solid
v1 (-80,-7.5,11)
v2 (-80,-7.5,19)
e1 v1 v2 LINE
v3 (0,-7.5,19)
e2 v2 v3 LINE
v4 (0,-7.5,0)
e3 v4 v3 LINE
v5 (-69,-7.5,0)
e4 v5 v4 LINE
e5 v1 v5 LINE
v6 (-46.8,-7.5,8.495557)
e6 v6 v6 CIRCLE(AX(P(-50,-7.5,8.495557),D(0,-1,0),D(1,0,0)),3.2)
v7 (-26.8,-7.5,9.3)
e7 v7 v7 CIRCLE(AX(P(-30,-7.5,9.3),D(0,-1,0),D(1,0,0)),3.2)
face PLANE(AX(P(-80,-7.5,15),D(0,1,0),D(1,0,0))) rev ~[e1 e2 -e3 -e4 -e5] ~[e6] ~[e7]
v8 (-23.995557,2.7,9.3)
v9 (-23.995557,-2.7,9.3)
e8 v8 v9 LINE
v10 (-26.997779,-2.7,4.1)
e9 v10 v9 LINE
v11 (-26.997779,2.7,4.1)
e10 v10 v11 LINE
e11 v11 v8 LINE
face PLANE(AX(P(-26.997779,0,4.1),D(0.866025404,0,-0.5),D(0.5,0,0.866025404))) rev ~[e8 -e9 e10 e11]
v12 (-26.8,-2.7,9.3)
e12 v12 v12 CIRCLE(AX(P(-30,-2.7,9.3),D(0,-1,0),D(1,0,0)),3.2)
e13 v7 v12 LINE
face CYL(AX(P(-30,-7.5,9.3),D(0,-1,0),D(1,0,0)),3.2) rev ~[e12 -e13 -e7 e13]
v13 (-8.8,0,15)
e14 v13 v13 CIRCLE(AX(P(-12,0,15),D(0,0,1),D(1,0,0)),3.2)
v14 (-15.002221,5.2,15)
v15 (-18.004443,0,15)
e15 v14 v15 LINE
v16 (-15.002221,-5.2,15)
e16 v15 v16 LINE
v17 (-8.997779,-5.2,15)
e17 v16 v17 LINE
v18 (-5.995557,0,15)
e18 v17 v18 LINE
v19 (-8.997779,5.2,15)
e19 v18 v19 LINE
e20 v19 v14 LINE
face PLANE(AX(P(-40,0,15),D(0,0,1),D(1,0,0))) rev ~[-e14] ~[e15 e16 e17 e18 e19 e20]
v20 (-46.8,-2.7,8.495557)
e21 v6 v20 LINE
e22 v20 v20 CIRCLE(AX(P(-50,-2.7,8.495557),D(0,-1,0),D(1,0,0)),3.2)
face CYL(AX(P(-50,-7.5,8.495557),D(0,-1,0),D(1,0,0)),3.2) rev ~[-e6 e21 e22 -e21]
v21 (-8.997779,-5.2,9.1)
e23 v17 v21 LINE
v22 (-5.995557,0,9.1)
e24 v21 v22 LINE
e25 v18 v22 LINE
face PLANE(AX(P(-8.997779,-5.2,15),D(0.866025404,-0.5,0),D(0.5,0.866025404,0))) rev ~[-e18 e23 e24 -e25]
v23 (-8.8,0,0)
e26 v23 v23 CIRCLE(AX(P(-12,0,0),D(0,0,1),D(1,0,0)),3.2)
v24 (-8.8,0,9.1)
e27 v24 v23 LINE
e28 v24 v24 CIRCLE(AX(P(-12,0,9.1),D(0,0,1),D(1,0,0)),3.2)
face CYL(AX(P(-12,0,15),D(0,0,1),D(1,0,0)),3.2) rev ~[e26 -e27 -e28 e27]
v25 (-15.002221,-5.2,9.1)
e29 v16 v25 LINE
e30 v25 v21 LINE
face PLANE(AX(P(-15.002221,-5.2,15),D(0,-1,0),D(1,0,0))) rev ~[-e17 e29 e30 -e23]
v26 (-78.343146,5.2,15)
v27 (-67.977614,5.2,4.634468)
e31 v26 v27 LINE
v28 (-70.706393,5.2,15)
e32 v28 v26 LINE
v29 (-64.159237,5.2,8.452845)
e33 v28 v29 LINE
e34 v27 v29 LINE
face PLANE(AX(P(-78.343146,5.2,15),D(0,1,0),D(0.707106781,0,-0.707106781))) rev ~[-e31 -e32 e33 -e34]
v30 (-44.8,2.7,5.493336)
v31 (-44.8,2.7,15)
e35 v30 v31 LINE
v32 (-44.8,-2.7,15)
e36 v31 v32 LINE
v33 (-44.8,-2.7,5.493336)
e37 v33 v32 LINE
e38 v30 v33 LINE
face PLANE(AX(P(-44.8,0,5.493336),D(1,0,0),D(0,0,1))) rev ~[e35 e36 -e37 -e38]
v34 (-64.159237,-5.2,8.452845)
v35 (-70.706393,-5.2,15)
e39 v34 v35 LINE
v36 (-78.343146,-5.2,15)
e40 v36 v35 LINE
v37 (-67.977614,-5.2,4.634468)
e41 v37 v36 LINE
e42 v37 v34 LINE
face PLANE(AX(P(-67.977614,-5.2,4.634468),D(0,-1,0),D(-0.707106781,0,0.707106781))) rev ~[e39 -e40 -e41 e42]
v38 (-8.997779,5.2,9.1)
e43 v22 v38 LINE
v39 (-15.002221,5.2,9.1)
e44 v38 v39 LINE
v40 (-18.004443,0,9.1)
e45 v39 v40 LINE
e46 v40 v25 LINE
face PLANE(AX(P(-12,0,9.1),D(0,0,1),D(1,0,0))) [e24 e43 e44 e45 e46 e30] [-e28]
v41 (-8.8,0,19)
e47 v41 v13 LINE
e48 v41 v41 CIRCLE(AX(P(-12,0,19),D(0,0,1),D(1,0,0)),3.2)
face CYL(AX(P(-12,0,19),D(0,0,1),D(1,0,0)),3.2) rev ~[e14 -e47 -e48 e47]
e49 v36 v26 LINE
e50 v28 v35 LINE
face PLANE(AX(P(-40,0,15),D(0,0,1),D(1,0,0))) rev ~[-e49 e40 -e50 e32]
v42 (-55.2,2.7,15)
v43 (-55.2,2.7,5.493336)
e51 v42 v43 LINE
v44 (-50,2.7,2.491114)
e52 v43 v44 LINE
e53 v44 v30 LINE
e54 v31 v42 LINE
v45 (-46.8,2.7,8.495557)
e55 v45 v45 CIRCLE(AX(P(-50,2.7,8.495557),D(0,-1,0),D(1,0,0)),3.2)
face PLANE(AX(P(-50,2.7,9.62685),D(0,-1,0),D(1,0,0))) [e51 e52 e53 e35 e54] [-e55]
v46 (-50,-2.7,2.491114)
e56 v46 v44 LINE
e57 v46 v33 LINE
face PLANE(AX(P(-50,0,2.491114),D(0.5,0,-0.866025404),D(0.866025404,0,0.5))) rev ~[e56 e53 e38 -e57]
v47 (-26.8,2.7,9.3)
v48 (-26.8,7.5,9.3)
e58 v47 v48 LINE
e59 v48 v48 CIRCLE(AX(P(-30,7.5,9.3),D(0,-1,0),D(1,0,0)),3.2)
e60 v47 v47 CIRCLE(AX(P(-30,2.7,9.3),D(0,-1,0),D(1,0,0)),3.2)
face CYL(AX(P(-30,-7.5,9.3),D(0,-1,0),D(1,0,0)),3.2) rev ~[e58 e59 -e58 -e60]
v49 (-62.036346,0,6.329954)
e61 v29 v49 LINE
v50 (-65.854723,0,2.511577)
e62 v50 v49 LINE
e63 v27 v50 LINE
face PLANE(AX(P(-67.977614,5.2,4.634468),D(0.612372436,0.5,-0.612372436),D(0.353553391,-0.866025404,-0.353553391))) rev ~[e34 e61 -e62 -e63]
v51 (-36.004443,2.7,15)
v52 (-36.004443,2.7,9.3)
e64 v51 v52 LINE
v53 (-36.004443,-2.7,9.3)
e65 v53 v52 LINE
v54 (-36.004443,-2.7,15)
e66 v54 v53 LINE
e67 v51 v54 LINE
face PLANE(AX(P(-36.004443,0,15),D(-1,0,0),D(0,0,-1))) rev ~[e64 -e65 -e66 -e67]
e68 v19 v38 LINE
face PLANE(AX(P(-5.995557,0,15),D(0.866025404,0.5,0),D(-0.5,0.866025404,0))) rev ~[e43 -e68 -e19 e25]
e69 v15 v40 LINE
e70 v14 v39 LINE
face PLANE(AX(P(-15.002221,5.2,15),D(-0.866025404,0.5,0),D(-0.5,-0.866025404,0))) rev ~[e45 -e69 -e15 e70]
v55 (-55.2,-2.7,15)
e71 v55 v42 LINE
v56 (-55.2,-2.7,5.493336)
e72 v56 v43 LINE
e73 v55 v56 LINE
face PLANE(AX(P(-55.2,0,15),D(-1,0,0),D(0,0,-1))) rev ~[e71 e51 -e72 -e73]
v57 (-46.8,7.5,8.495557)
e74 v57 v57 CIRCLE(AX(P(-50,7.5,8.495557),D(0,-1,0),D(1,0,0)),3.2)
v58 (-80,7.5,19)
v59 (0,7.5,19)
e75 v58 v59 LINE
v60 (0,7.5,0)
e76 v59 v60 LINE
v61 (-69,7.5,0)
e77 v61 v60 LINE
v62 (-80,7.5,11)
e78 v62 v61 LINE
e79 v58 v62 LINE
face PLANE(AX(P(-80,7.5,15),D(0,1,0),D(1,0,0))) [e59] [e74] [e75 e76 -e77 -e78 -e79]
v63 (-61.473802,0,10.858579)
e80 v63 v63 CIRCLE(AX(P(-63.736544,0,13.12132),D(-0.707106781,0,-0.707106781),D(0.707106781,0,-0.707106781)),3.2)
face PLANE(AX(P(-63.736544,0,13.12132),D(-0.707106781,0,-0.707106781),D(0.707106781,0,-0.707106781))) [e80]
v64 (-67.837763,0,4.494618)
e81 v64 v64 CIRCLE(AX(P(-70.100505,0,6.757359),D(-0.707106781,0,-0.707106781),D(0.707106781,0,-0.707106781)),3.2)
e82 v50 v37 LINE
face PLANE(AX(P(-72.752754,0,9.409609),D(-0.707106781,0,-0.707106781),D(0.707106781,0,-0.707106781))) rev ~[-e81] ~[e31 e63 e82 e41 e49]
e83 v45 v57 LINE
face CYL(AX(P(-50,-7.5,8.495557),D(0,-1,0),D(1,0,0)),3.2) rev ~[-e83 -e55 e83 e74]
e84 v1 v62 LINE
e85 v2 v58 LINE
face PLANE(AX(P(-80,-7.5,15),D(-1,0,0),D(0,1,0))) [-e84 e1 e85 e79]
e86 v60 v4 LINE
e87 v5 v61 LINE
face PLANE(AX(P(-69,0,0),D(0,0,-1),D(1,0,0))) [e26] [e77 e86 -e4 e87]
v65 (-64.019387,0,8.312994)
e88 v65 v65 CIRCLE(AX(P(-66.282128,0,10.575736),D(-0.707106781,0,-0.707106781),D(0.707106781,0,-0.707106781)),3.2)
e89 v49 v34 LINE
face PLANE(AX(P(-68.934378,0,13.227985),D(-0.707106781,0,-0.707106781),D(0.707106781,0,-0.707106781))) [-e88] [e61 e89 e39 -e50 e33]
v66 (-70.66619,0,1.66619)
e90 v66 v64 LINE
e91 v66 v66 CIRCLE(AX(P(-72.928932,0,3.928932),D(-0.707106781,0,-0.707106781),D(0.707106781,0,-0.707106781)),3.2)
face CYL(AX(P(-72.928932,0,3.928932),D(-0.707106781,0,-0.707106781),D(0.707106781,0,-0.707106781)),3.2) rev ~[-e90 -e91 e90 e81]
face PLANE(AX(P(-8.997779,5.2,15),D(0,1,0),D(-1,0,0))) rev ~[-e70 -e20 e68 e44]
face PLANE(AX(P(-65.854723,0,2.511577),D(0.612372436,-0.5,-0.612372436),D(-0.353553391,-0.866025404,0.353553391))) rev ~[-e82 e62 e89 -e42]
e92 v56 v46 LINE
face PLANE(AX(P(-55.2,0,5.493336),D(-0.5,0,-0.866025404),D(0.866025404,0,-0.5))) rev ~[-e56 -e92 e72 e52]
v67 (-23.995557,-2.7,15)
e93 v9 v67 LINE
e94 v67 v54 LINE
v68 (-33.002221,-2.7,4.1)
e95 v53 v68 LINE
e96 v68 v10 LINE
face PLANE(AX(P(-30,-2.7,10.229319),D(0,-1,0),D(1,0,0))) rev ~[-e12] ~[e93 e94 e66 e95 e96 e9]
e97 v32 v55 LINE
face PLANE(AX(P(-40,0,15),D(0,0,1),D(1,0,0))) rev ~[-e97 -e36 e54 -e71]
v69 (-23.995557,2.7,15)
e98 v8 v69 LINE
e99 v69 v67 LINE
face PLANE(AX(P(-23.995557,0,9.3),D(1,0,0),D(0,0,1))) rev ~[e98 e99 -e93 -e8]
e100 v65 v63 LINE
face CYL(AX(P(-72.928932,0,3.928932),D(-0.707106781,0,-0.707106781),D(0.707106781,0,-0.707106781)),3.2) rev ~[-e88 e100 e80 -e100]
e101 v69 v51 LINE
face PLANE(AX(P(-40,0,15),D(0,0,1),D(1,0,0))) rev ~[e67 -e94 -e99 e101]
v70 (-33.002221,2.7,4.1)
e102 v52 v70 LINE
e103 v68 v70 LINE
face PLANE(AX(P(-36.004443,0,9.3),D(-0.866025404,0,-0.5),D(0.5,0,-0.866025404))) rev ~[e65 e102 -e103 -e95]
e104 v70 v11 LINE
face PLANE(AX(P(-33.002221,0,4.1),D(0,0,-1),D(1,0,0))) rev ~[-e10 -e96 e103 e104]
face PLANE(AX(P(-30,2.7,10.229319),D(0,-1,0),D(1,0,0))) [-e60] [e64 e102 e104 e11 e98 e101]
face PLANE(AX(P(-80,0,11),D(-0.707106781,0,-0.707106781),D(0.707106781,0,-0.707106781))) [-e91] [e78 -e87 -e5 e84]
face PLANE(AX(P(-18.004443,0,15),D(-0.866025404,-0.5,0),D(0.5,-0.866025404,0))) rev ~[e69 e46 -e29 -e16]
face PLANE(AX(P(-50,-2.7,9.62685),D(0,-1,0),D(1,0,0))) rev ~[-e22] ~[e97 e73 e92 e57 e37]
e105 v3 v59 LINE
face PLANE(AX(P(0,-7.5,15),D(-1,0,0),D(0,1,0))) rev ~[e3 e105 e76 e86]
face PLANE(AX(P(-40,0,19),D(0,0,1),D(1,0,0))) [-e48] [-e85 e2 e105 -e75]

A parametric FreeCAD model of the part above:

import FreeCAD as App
import Part
import Sketcher
from FreeCAD import Vector
Q = App.Units.Quantity

doc = App.newDocument("Part")
body = doc.addObject("PartDesign::Body", "Body")

# Sketch on XZ plane
sketch1 = doc.addObject("Sketcher::SketchObject", "Sketch")
body.addObject(sketch1)
sketch1.AttachmentSupport = (doc.XZ_Plane, [""])
sketch1.MapMode = "FlatFace"
sketch1.addGeometry(Part.LineSegment(Vector(-69, 0, 0), Vector(0, 0, 0)), False)
sketch1.addGeometry(Part.LineSegment(Vector(0, 0, 0), Vector(0, 15, 0)), False)
sketch1.addGeometry(Part.LineSegment(Vector(0, 15, 0), Vector(-80, 15, 0)), False)
sketch1.addGeometry(Part.LineSegment(Vector(-80, 15, 0), Vector(-80, 11, 0)), False)
sketch1.addGeometry(Part.LineSegment(Vector(-80, 11, 0), Vector(-69, 0, 0)), False)
sketch1.addConstraint(Sketcher.Constraint("Coincident", 0, 2, 1, 1))
sketch1.addConstraint(Sketcher.Constraint("Coincident", 1, 2, 2, 1))
sketch1.addConstraint(Sketcher.Constraint("Coincident", 2, 2, 3, 1))
sketch1.addConstraint(Sketcher.Constraint("Coincident", 3, 2, 4, 1))
sketch1.addConstraint(Sketcher.Constraint("Coincident", 4, 2, 0, 1))
sketch1.addConstraint(Sketcher.Constraint("Horizontal", 0))
sketch1.addConstraint(Sketcher.Constraint("Vertical", 1))
sketch1.addConstraint(Sketcher.Constraint("Horizontal", 2))
sketch1.addConstraint(Sketcher.Constraint("Vertical", 3))
sketch1.addConstraint(Sketcher.Constraint("Coincident", 0, 2, -1, 1))
sketch1.addConstraint(Sketcher.Constraint("DistanceX", 0, 1, 0, 2, 69.0))
sketch1.addConstraint(Sketcher.Constraint("DistanceX", 2, 2, 2, 1, 80.0))
sketch1.addConstraint(Sketcher.Constraint("DistanceY", 1, 1, 1, 2, 15.0))
sketch1.addConstraint(Sketcher.Constraint("DistanceY", 3, 2, 3, 1, 4.0))
pad1 = doc.addObject("PartDesign::Pad", "Pad")
body.addObject(pad1)
pad1.Profile = sketch1
pad1.Length = 15
pad1.Midplane = True

# Sketch on XY plane
sketch2 = doc.addObject("Sketcher::SketchObject", "Sketch001")
body.addObject(sketch2)
sketch2.AttachmentSupport = (doc.XY_Plane, [""])
sketch2.MapMode = "FlatFace"
sketch2.AttachmentOffset = App.Placement(Vector(0, 0, 15), App.Rotation())
sketch2.addGeometry(Part.Circle(Vector(-12, 0, 0), Vector(0, 0, 1), 3.2), False)
sketch2.addConstraint(Sketcher.Constraint("PointOnObject", 0, 3, -1))
sketch2.addConstraint(Sketcher.Constraint("Diameter", 0, 6.4))
sketch2.addConstraint(Sketcher.Constraint("DistanceX", 0, 3, -1, 1, 12.0))
pocket1 = doc.addObject("PartDesign::Pocket", "Pocket")
body.addObject(pocket1)
pocket1.Profile = sketch2
pocket1.Type = "ThroughAll"

# Sketch on XZ plane
sketch3 = doc.addObject("Sketcher::SketchObject", "Sketch002")
body.addObject(sketch3)
sketch3.AttachmentSupport = (doc.XZ_Plane, [""])
sketch3.MapMode = "FlatFace"
sketch3.addGeometry(Part.LineSegment(Vector(-26.997779, 4.1, 0), Vector(-23.995557, 9.3, 0)), False)
sketch3.addGeometry(Part.LineSegment(Vector(-23.995557, 9.3, 0), Vector(-23.995557, 15, 0)), False)
sketch3.addGeometry(Part.LineSegment(Vector(-23.995557, 15, 0), Vector(-36.004443, 15, 0)), False)
sketch3.addGeometry(Part.LineSegment(Vector(-36.004443, 15, 0), Vector(-36.004443, 9.3, 0)), False)
sketch3.addGeometry(Part.LineSegment(Vector(-36.004443, 9.3, 0), Vector(-33.002221, 4.1, 0)), False)
sketch3.addGeometry(Part.LineSegment(Vector(-33.002221, 4.1, 0), Vector(-26.997779, 4.1, 0)), False)
sketch3.addConstraint(Sketcher.Constraint("Coincident", 0, 2, 1, 1))
sketch3.addConstraint(Sketcher.Constraint("Coincident", 1, 2, 2, 1))
sketch3.addConstraint(Sketcher.Constraint("Coincident", 2, 2, 3, 1))
sketch3.addConstraint(Sketcher.Constraint("Coincident", 3, 2, 4, 1))
sketch3.addConstraint(Sketcher.Constraint("Coincident", 4, 2, 5, 1))
sketch3.addConstraint(Sketcher.Constraint("Coincident", 5, 2, 0, 1))
sketch3.addConstraint(Sketcher.Constraint("Vertical", 1))
sketch3.addConstraint(Sketcher.Constraint("Horizontal", 2))
sketch3.addConstraint(Sketcher.Constraint("Vertical", 3))
sketch3.addConstraint(Sketcher.Constraint("Horizontal", 5))
sketch3.addConstraint(Sketcher.Constraint("Horizontal", 0, 2, 3, 2))
sketch3.addConstraint(Sketcher.Constraint("Equal", 0, 4))
sketch3.addConstraint(Sketcher.Constraint("Angle", 0, Q("60 deg")))
sketch3.addConstraint(Sketcher.Constraint("DistanceY", 1, 1, 1, 2, 5.7))
sketch3.addConstraint(Sketcher.Constraint("DistanceY", -1, 1, 1, 2, 15.0))
sketch3.addConstraint(Sketcher.Constraint("DistanceY", -1, 1, 4, 2, 4.1))
sketch3.addConstraint(Sketcher.Constraint("DistanceX", 2, 2, 2, 1, 12.008886))
sketch3.addConstraint(Sketcher.Constraint("DistanceX", 4, 2, -1, 1, 33.002221))
pocket2 = doc.addObject("PartDesign::Pocket", "Pocket001")
body.addObject(pocket2)
pocket2.Profile = sketch3
pocket2.Length = 5.4
pocket2.Midplane = True

# Sketch on XY plane
sketch4 = doc.addObject("Sketcher::SketchObject", "Sketch003")
body.addObject(sketch4)
sketch4.AttachmentSupport = (doc.XY_Plane, [""])
sketch4.MapMode = "FlatFace"
sketch4.AttachmentOffset = App.Placement(Vector(0, 0, 15), App.Rotation())
sketch4.addGeometry(Part.LineSegment(Vector(-15.002221, -5.2, 0), Vector(-8.997779, -5.2, 0)), False)
sketch4.addGeometry(Part.LineSegment(Vector(-8.997779, -5.2, 0), Vector(-5.995557, 0, 0)), False)
sketch4.addGeometry(Part.LineSegment(Vector(-5.995557, 0, 0), Vector(-8.997779, 5.2, 0)), False)
sketch4.addGeometry(Part.LineSegment(Vector(-8.997779, 5.2, 0), Vector(-15.002221, 5.2, 0)), False)
sketch4.addGeometry(Part.LineSegment(Vector(-15.002221, 5.2, 0), Vector(-18.004443, 0, 0)), False)
sketch4.addGeometry(Part.LineSegment(Vector(-18.004443, 0, 0), Vector(-15.002221, -5.2, 0)), False)
sketch4.addConstraint(Sketcher.Constraint("Coincident", 0, 2, 1, 1))
sketch4.addConstraint(Sketcher.Constraint("Coincident", 1, 2, 2, 1))
sketch4.addConstraint(Sketcher.Constraint("Coincident", 2, 2, 3, 1))
sketch4.addConstraint(Sketcher.Constraint("Coincident", 3, 2, 4, 1))
sketch4.addConstraint(Sketcher.Constraint("Coincident", 4, 2, 5, 1))
sketch4.addConstraint(Sketcher.Constraint("Coincident", 5, 2, 0, 1))
sketch4.addConstraint(Sketcher.Constraint("Horizontal", 0))
sketch4.addConstraint(Sketcher.Constraint("Horizontal", 3))
sketch4.addConstraint(Sketcher.Constraint("Symmetric", 0, 2, 2, 2, -1))
sketch4.addConstraint(Sketcher.Constraint("PointOnObject", 1, 2, -1))
sketch4.addConstraint(Sketcher.Constraint("PointOnObject", 4, 2, -1))
sketch4.addConstraint(Sketcher.Constraint("Parallel", 1, 4))
sketch4.addConstraint(Sketcher.Constraint("Parallel", 2, 5))
sketch4.addConstraint(Sketcher.Constraint("Angle", 1, Q("60 deg")))
sketch4.addConstraint(Sketcher.Constraint("DistanceY", 0, 2, -1, 1, 5.2))
sketch4.addConstraint(Sketcher.Constraint("DistanceX", 0, 1, 0, 2, 6.004443))
sketch4.addConstraint(Sketcher.Constraint("DistanceX", 0, 2, -1, 1, 8.997779))
pocket3 = doc.addObject("PartDesign::Pocket", "Pocket002")
body.addObject(pocket3)
pocket3.Profile = sketch4
pocket3.Length = 5.9

# Sketch on XZ plane
sketch5 = doc.addObject("Sketcher::SketchObject", "Sketch004")
body.addObject(sketch5)
sketch5.AttachmentSupport = (doc.XZ_Plane, [""])
sketch5.MapMode = "FlatFace"
sketch5.AttachmentOffset = App.Placement(Vector(0, 0, 7.5), App.Rotation())
sketch5.addGeometry(Part.Circle(Vector(-30, 9.3, 0), Vector(0, 0, 1), 3.2), False)
sketch5.addConstraint(Sketcher.Constraint("Diameter", 0, 6.4))
sketch5.addConstraint(Sketcher.Constraint("DistanceX", 0, 3, -1, 1, 30.0))
sketch5.addConstraint(Sketcher.Constraint("DistanceY", -1, 1, 0, 3, 9.3))
pocket4 = doc.addObject("PartDesign::Pocket", "Pocket003")
body.addObject(pocket4)
pocket4.Profile = sketch5
pocket4.Type = "ThroughAll"

# Sketch on XZ plane
sketch6 = doc.addObject("Sketcher::SketchObject", "Sketch005")
body.addObject(sketch6)
sketch6.AttachmentSupport = (doc.XZ_Plane, [""])
sketch6.MapMode = "FlatFace"
sketch6.addGeometry(Part.LineSegment(Vector(-50, 2.491114, 0), Vector(-44.8, 5.493336, 0)), False)
sketch6.addGeometry(Part.LineSegment(Vector(-44.8, 5.493336, 0), Vector(-44.8, 15, 0)), False)
sketch6.addGeometry(Part.LineSegment(Vector(-44.8, 15, 0), Vector(-55.2, 15, 0)), False)
sketch6.addGeometry(Part.LineSegment(Vector(-55.2, 15, 0), Vector(-55.2, 5.493336, 0)), False)
sketch6.addGeometry(Part.LineSegment(Vector(-55.2, 5.493336, 0), Vector(-50, 2.491114, 0)), False)
sketch6.addConstraint(Sketcher.Constraint("Coincident", 0, 2, 1, 1))
sketch6.addConstraint(Sketcher.Constraint("Coincident", 1, 2, 2, 1))
sketch6.addConstraint(Sketcher.Constraint("Coincident", 2, 2, 3, 1))
sketch6.addConstraint(Sketcher.Constraint("Coincident", 3, 2, 4, 1))
sketch6.addConstraint(Sketcher.Constraint("Coincident", 4, 2, 0, 1))
sketch6.addConstraint(Sketcher.Constraint("Vertical", 1))
sketch6.addConstraint(Sketcher.Constraint("Horizontal", 2))
sketch6.addConstraint(Sketcher.Constraint("Vertical", 3))
sketch6.addConstraint(Sketcher.Constraint("Horizontal", 0, 2, 3, 2))
sketch6.addConstraint(Sketcher.Constraint("Equal", 0, 4))
sketch6.addConstraint(Sketcher.Constraint("Angle", 0, Q("30 deg")))
sketch6.addConstraint(Sketcher.Constraint("DistanceX", 2, 2, 2, 1, 10.4))
sketch6.addConstraint(Sketcher.Constraint("DistanceY", -1, 1, 1, 2, 15.0))
sketch6.addConstraint(Sketcher.Constraint("DistanceX", 4, 2, -1, 1, 50.0))
sketch6.addConstraint(Sketcher.Constraint("DistanceY", 1, 1, 1, 2, 9.506664))
pocket5 = doc.addObject("PartDesign::Pocket", "Pocket004")
body.addObject(pocket5)
pocket5.Profile = sketch6
pocket5.Length = 5.4
pocket5.Midplane = True

# Sketch on XZ plane
sketch7 = doc.addObject("Sketcher::SketchObject", "Sketch006")
body.addObject(sketch7)
sketch7.AttachmentSupport = (doc.XZ_Plane, [""])
sketch7.MapMode = "FlatFace"
sketch7.AttachmentOffset = App.Placement(Vector(0, 0, 7.5), App.Rotation())
sketch7.addGeometry(Part.Circle(Vector(-50, 8.495557, 0), Vector(0, 0, 1), 3.2), False)
sketch7.addConstraint(Sketcher.Constraint("Diameter", 0, 6.4))
sketch7.addConstraint(Sketcher.Constraint("DistanceX", 0, 3, -1, 1, 50.0))
sketch7.addConstraint(Sketcher.Constraint("DistanceY", -1, 1, 0, 3, 8.495557))
pocket6 = doc.addObject("PartDesign::Pocket", "Pocket005")
body.addObject(pocket6)
pocket6.Profile = sketch7
pocket6.Type = "ThroughAll"

# Sketch on an angled plane
sketch8 = doc.addObject("Sketcher::SketchObject", "Sketch007")
body.addObject(sketch8)
sketch8.Placement = App.Placement(Vector(-31.671573, 0, -31.671573), App.Rotation(Vector(0.707106781, 0, -0.707106781), Vector(0, -0.999999999, 0), Vector(-0.707106781, 0, -0.707106781), "ZXY"))
sketch8.addGeometry(Part.LineSegment(Vector(-48.342274, 0, 0), Vector(-51.344496, 5.2, 0)), False)
sketch8.addGeometry(Part.LineSegment(Vector(-51.344496, 5.2, 0), Vector(-66.003571, 5.2, 0)), False)
sketch8.addGeometry(Part.LineSegment(Vector(-66.003571, 5.2, 0), Vector(-66.003571, -5.2, 0)), False)
sketch8.addGeometry(Part.LineSegment(Vector(-66.003571, -5.2, 0), Vector(-51.344496, -5.2, 0)), False)
sketch8.addGeometry(Part.LineSegment(Vector(-51.344496, -5.2, 0), Vector(-48.342274, 0, 0)), False)
sketch8.addConstraint(Sketcher.Constraint("Coincident", 0, 2, 1, 1))
sketch8.addConstraint(Sketcher.Constraint("Coincident", 1, 2, 2, 1))
sketch8.addConstraint(Sketcher.Constraint("Coincident", 2, 2, 3, 1))
sketch8.addConstraint(Sketcher.Constraint("Coincident", 3, 2, 4, 1))
sketch8.addConstraint(Sketcher.Constraint("Coincident", 4, 2, 0, 1))
sketch8.addConstraint(Sketcher.Constraint("Horizontal", 1))
sketch8.addConstraint(Sketcher.Constraint("Vertical", 2))
sketch8.addConstraint(Sketcher.Constraint("Horizontal", 3))
sketch8.addConstraint(Sketcher.Constraint("Symmetric", 0, 2, 3, 2, -1))
sketch8.addConstraint(Sketcher.Constraint("PointOnObject", 4, 2, -1))
sketch8.addConstraint(Sketcher.Constraint("Angle", 0, Q("120 deg")))
sketch8.addConstraint(Sketcher.Constraint("DistanceY", 2, 2, 2, 1, 10.4))
sketch8.addConstraint(Sketcher.Constraint("DistanceX", 1, 2, 1, 1, 14.659076))
sketch8.addConstraint(Sketcher.Constraint("DistanceX", 1, 2, -1, 1, 66.003571))
pocket7 = doc.addObject("PartDesign::Pocket", "Pocket006")
body.addObject(pocket7)
pocket7.Profile = sketch8
pocket7.Length = 5.4

# Sketch on XY plane
sketch9 = doc.addObject("Sketcher::SketchObject", "Sketch008")
body.addObject(sketch9)
sketch9.AttachmentSupport = (doc.XY_Plane, [""])
sketch9.MapMode = "FlatFace"
sketch9.AttachmentOffset = App.Placement(Vector(0, 0, 15), App.Rotation())
sketch9.addGeometry(Part.LineSegment(Vector(-80, 7.5, 0), Vector(-80, -7.5, 0)), False)
sketch9.addGeometry(Part.LineSegment(Vector(-80, -7.5, 0), Vector(0, -7.5, 0)), False)
sketch9.addGeometry(Part.LineSegment(Vector(0, -7.5, 0), Vector(0, 7.5, 0)), False)
sketch9.addGeometry(Part.LineSegment(Vector(0, 7.5, 0), Vector(-80, 7.5, 0)), False)
sketch9.addConstraint(Sketcher.Constraint("Coincident", 0, 2, 1, 1))
sketch9.addConstraint(Sketcher.Constraint("Coincident", 1, 2, 2, 1))
sketch9.addConstraint(Sketcher.Constraint("Coincident", 2, 2, 3, 1))
sketch9.addConstraint(Sketcher.Constraint("Coincident", 3, 2, 0, 1))
sketch9.addConstraint(Sketcher.Constraint("Vertical", 0))
sketch9.addConstraint(Sketcher.Constraint("Horizontal", 1))
sketch9.addConstraint(Sketcher.Constraint("Vertical", 2))
sketch9.addConstraint(Sketcher.Constraint("Horizontal", 3))
sketch9.addConstraint(Sketcher.Constraint("Symmetric", 1, 2, 2, 2, -1, 1))
sketch9.addConstraint(Sketcher.Constraint("DistanceX", 1, 1, 1, 2, 80.0))
sketch9.addConstraint(Sketcher.Constraint("DistanceY", 0, 2, 0, 1, 15.0))
pad2 = doc.addObject("PartDesign::Pad", "Pad001")
body.addObject(pad2)
pad2.Profile = sketch9
pad2.Length = 4

# Sketch on an angled plane
sketch10 = doc.addObject("Sketcher::SketchObject", "Sketch009")
body.addObject(sketch10)
sketch10.Placement = App.Placement(Vector(-34.5, 0, -34.5), App.Rotation(Vector(0.707106781, 0, -0.707106781), Vector(0, -0.999999999, 0), Vector(-0.707106781, 0, -0.707106781), "ZXY"))
sketch10.addGeometry(Part.Circle(Vector(-54.346717, 0, 0), Vector(0, 0, 1), 3.2), False)
sketch10.addConstraint(Sketcher.Constraint("PointOnObject", 0, 3, -1))
sketch10.addConstraint(Sketcher.Constraint("Diameter", 0, 6.4))
sketch10.addConstraint(Sketcher.Constraint("DistanceX", 0, 3, -1, 1, 54.346717))
pocket8 = doc.addObject("PartDesign::Pocket", "Pocket007")
body.addObject(pocket8)
pocket8.Profile = sketch10
pocket8.Length = 13

# Sketch on XY plane
sketch11 = doc.addObject("Sketcher::SketchObject", "Sketch010")
body.addObject(sketch11)
sketch11.AttachmentSupport = (doc.XY_Plane, [""])
sketch11.MapMode = "FlatFace"
sketch11.AttachmentOffset = App.Placement(Vector(0, 0, 19), App.Rotation())
sketch11.addGeometry(Part.Circle(Vector(-12, 0, 0), Vector(0, 0, 1), 3.2), False)
sketch11.addConstraint(Sketcher.Constraint("PointOnObject", 0, 3, -1))
sketch11.addConstraint(Sketcher.Constraint("Diameter", 0, 6.4))
sketch11.addConstraint(Sketcher.Constraint("DistanceX", 0, 3, -1, 1, 12.0))
pocket9 = doc.addObject("PartDesign::Pocket", "Pocket008")
body.addObject(pocket9)
pocket9.Profile = sketch11
pocket9.Type = "ThroughAll"

doc.recompute()
